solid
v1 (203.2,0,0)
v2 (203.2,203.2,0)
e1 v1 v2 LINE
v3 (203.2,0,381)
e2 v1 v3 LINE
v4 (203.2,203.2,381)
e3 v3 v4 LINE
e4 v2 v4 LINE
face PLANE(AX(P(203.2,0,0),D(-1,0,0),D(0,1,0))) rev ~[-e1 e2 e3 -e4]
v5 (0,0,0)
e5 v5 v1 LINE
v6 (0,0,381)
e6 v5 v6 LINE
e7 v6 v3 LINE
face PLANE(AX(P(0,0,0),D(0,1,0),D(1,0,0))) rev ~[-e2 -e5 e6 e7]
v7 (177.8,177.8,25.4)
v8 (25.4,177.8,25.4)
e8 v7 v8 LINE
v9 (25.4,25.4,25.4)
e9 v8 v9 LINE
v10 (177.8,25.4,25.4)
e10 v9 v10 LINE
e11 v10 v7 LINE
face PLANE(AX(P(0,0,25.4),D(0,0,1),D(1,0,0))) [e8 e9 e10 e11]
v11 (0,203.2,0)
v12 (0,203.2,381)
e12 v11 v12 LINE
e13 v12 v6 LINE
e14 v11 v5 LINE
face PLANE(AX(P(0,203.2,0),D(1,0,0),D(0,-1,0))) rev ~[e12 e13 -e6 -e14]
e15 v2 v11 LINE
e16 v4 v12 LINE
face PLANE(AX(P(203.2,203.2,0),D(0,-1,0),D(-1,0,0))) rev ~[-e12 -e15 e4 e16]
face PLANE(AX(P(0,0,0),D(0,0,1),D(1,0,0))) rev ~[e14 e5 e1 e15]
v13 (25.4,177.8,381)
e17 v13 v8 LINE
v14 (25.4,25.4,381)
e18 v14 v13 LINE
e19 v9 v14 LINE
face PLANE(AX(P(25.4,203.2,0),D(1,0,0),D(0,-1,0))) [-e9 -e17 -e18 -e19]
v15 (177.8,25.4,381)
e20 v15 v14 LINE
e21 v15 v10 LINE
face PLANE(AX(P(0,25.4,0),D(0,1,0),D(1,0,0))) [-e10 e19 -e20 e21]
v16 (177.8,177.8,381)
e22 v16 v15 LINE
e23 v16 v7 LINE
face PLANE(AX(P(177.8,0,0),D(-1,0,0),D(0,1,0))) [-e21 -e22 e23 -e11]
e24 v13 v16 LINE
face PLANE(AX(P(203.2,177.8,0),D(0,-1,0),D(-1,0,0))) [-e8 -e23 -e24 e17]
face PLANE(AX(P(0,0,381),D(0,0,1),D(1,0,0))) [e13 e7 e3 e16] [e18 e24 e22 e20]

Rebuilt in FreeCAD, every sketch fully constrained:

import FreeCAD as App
import Part
import Sketcher
Q = App.Units.Quantity


def faces_at(feature, points):
    """Names of the faces that lie closest to the given points."""
    faces = feature.Shape.Faces
    near = lambda p: min(range(len(faces)), key=lambda i: faces[i].distToShape(Part.Vertex(*p))[0])
    return sorted({f"Face{near(p) + 1}" for p in points})

doc = App.newDocument("Part")
params = doc.addObject("Spreadsheet::Sheet", "Params")
for row, (alias, value) in enumerate([
    ("sketch1_width", "8 in"),
    ("pad1_length", "15 in"),
    ("thickness_wall", "1 in"),
], start=1):
    params.set(f"A{row}", alias)
    params.set(f"B{row}", "=" + value)
    params.setAlias(f"B{row}", alias)

body = doc.addObject("PartDesign::Body", "Body")

# Sketch on XY plane
sketch1 = doc.addObject("Sketcher::SketchObject", "Sketch")
body.addObject(sketch1)
sketch1.AttachmentSupport = (doc.XY_Plane, [""])
sketch1.MapMode = "FlatFace"
sketch1.addGeometry([
    Part.LineSegment(App.Vector(0, 203, 0), App.Vector(0, 0, 0)),
    Part.LineSegment(App.Vector(0, 0, 0), App.Vector(203, 0, 0)),
    Part.LineSegment(App.Vector(203, 0, 0), App.Vector(203, 203, 0)),
    Part.LineSegment(App.Vector(203, 203, 0), App.Vector(0, 203, 0)),
], False)
sketch1.addConstraint([
    Sketcher.Constraint("Coincident", 0, 2, 1, 1),
    Sketcher.Constraint("Coincident", 1, 2, 2, 1),
    Sketcher.Constraint("Coincident", 2, 2, 3, 1),
    Sketcher.Constraint("Coincident", 3, 2, 0, 1),
    Sketcher.Constraint("Vertical", 0),
    Sketcher.Constraint("Horizontal", 1),
    Sketcher.Constraint("Vertical", 2),
    Sketcher.Constraint("Horizontal", 3),
    Sketcher.Constraint("Coincident", 0, 2, -1, 1),
    Sketcher.Constraint("Equal", 3, 0),
    Sketcher.Constraint("DistanceX", 1, 1, 1, 2, Q("8 in")),
])
sketch1.setExpression("Constraints[10]", "Params.sketch1_width")
pad1 = doc.addObject("PartDesign::Pad", "Pad")
body.addObject(pad1)
pad1.Profile = sketch1
pad1.setExpression("Length", "Params.pad1_length")
doc.recompute()

thickness = doc.addObject("PartDesign::Thickness", "Thickness")
body.addObject(thickness)
thickness.Base = (pad1, faces_at(pad1, [(135.467, 135.467, 381)]))
thickness.setExpression("Value", "Params.thickness_wall")
thickness.Reversed = True
thickness.Join = "Intersection"

doc.recompute()
